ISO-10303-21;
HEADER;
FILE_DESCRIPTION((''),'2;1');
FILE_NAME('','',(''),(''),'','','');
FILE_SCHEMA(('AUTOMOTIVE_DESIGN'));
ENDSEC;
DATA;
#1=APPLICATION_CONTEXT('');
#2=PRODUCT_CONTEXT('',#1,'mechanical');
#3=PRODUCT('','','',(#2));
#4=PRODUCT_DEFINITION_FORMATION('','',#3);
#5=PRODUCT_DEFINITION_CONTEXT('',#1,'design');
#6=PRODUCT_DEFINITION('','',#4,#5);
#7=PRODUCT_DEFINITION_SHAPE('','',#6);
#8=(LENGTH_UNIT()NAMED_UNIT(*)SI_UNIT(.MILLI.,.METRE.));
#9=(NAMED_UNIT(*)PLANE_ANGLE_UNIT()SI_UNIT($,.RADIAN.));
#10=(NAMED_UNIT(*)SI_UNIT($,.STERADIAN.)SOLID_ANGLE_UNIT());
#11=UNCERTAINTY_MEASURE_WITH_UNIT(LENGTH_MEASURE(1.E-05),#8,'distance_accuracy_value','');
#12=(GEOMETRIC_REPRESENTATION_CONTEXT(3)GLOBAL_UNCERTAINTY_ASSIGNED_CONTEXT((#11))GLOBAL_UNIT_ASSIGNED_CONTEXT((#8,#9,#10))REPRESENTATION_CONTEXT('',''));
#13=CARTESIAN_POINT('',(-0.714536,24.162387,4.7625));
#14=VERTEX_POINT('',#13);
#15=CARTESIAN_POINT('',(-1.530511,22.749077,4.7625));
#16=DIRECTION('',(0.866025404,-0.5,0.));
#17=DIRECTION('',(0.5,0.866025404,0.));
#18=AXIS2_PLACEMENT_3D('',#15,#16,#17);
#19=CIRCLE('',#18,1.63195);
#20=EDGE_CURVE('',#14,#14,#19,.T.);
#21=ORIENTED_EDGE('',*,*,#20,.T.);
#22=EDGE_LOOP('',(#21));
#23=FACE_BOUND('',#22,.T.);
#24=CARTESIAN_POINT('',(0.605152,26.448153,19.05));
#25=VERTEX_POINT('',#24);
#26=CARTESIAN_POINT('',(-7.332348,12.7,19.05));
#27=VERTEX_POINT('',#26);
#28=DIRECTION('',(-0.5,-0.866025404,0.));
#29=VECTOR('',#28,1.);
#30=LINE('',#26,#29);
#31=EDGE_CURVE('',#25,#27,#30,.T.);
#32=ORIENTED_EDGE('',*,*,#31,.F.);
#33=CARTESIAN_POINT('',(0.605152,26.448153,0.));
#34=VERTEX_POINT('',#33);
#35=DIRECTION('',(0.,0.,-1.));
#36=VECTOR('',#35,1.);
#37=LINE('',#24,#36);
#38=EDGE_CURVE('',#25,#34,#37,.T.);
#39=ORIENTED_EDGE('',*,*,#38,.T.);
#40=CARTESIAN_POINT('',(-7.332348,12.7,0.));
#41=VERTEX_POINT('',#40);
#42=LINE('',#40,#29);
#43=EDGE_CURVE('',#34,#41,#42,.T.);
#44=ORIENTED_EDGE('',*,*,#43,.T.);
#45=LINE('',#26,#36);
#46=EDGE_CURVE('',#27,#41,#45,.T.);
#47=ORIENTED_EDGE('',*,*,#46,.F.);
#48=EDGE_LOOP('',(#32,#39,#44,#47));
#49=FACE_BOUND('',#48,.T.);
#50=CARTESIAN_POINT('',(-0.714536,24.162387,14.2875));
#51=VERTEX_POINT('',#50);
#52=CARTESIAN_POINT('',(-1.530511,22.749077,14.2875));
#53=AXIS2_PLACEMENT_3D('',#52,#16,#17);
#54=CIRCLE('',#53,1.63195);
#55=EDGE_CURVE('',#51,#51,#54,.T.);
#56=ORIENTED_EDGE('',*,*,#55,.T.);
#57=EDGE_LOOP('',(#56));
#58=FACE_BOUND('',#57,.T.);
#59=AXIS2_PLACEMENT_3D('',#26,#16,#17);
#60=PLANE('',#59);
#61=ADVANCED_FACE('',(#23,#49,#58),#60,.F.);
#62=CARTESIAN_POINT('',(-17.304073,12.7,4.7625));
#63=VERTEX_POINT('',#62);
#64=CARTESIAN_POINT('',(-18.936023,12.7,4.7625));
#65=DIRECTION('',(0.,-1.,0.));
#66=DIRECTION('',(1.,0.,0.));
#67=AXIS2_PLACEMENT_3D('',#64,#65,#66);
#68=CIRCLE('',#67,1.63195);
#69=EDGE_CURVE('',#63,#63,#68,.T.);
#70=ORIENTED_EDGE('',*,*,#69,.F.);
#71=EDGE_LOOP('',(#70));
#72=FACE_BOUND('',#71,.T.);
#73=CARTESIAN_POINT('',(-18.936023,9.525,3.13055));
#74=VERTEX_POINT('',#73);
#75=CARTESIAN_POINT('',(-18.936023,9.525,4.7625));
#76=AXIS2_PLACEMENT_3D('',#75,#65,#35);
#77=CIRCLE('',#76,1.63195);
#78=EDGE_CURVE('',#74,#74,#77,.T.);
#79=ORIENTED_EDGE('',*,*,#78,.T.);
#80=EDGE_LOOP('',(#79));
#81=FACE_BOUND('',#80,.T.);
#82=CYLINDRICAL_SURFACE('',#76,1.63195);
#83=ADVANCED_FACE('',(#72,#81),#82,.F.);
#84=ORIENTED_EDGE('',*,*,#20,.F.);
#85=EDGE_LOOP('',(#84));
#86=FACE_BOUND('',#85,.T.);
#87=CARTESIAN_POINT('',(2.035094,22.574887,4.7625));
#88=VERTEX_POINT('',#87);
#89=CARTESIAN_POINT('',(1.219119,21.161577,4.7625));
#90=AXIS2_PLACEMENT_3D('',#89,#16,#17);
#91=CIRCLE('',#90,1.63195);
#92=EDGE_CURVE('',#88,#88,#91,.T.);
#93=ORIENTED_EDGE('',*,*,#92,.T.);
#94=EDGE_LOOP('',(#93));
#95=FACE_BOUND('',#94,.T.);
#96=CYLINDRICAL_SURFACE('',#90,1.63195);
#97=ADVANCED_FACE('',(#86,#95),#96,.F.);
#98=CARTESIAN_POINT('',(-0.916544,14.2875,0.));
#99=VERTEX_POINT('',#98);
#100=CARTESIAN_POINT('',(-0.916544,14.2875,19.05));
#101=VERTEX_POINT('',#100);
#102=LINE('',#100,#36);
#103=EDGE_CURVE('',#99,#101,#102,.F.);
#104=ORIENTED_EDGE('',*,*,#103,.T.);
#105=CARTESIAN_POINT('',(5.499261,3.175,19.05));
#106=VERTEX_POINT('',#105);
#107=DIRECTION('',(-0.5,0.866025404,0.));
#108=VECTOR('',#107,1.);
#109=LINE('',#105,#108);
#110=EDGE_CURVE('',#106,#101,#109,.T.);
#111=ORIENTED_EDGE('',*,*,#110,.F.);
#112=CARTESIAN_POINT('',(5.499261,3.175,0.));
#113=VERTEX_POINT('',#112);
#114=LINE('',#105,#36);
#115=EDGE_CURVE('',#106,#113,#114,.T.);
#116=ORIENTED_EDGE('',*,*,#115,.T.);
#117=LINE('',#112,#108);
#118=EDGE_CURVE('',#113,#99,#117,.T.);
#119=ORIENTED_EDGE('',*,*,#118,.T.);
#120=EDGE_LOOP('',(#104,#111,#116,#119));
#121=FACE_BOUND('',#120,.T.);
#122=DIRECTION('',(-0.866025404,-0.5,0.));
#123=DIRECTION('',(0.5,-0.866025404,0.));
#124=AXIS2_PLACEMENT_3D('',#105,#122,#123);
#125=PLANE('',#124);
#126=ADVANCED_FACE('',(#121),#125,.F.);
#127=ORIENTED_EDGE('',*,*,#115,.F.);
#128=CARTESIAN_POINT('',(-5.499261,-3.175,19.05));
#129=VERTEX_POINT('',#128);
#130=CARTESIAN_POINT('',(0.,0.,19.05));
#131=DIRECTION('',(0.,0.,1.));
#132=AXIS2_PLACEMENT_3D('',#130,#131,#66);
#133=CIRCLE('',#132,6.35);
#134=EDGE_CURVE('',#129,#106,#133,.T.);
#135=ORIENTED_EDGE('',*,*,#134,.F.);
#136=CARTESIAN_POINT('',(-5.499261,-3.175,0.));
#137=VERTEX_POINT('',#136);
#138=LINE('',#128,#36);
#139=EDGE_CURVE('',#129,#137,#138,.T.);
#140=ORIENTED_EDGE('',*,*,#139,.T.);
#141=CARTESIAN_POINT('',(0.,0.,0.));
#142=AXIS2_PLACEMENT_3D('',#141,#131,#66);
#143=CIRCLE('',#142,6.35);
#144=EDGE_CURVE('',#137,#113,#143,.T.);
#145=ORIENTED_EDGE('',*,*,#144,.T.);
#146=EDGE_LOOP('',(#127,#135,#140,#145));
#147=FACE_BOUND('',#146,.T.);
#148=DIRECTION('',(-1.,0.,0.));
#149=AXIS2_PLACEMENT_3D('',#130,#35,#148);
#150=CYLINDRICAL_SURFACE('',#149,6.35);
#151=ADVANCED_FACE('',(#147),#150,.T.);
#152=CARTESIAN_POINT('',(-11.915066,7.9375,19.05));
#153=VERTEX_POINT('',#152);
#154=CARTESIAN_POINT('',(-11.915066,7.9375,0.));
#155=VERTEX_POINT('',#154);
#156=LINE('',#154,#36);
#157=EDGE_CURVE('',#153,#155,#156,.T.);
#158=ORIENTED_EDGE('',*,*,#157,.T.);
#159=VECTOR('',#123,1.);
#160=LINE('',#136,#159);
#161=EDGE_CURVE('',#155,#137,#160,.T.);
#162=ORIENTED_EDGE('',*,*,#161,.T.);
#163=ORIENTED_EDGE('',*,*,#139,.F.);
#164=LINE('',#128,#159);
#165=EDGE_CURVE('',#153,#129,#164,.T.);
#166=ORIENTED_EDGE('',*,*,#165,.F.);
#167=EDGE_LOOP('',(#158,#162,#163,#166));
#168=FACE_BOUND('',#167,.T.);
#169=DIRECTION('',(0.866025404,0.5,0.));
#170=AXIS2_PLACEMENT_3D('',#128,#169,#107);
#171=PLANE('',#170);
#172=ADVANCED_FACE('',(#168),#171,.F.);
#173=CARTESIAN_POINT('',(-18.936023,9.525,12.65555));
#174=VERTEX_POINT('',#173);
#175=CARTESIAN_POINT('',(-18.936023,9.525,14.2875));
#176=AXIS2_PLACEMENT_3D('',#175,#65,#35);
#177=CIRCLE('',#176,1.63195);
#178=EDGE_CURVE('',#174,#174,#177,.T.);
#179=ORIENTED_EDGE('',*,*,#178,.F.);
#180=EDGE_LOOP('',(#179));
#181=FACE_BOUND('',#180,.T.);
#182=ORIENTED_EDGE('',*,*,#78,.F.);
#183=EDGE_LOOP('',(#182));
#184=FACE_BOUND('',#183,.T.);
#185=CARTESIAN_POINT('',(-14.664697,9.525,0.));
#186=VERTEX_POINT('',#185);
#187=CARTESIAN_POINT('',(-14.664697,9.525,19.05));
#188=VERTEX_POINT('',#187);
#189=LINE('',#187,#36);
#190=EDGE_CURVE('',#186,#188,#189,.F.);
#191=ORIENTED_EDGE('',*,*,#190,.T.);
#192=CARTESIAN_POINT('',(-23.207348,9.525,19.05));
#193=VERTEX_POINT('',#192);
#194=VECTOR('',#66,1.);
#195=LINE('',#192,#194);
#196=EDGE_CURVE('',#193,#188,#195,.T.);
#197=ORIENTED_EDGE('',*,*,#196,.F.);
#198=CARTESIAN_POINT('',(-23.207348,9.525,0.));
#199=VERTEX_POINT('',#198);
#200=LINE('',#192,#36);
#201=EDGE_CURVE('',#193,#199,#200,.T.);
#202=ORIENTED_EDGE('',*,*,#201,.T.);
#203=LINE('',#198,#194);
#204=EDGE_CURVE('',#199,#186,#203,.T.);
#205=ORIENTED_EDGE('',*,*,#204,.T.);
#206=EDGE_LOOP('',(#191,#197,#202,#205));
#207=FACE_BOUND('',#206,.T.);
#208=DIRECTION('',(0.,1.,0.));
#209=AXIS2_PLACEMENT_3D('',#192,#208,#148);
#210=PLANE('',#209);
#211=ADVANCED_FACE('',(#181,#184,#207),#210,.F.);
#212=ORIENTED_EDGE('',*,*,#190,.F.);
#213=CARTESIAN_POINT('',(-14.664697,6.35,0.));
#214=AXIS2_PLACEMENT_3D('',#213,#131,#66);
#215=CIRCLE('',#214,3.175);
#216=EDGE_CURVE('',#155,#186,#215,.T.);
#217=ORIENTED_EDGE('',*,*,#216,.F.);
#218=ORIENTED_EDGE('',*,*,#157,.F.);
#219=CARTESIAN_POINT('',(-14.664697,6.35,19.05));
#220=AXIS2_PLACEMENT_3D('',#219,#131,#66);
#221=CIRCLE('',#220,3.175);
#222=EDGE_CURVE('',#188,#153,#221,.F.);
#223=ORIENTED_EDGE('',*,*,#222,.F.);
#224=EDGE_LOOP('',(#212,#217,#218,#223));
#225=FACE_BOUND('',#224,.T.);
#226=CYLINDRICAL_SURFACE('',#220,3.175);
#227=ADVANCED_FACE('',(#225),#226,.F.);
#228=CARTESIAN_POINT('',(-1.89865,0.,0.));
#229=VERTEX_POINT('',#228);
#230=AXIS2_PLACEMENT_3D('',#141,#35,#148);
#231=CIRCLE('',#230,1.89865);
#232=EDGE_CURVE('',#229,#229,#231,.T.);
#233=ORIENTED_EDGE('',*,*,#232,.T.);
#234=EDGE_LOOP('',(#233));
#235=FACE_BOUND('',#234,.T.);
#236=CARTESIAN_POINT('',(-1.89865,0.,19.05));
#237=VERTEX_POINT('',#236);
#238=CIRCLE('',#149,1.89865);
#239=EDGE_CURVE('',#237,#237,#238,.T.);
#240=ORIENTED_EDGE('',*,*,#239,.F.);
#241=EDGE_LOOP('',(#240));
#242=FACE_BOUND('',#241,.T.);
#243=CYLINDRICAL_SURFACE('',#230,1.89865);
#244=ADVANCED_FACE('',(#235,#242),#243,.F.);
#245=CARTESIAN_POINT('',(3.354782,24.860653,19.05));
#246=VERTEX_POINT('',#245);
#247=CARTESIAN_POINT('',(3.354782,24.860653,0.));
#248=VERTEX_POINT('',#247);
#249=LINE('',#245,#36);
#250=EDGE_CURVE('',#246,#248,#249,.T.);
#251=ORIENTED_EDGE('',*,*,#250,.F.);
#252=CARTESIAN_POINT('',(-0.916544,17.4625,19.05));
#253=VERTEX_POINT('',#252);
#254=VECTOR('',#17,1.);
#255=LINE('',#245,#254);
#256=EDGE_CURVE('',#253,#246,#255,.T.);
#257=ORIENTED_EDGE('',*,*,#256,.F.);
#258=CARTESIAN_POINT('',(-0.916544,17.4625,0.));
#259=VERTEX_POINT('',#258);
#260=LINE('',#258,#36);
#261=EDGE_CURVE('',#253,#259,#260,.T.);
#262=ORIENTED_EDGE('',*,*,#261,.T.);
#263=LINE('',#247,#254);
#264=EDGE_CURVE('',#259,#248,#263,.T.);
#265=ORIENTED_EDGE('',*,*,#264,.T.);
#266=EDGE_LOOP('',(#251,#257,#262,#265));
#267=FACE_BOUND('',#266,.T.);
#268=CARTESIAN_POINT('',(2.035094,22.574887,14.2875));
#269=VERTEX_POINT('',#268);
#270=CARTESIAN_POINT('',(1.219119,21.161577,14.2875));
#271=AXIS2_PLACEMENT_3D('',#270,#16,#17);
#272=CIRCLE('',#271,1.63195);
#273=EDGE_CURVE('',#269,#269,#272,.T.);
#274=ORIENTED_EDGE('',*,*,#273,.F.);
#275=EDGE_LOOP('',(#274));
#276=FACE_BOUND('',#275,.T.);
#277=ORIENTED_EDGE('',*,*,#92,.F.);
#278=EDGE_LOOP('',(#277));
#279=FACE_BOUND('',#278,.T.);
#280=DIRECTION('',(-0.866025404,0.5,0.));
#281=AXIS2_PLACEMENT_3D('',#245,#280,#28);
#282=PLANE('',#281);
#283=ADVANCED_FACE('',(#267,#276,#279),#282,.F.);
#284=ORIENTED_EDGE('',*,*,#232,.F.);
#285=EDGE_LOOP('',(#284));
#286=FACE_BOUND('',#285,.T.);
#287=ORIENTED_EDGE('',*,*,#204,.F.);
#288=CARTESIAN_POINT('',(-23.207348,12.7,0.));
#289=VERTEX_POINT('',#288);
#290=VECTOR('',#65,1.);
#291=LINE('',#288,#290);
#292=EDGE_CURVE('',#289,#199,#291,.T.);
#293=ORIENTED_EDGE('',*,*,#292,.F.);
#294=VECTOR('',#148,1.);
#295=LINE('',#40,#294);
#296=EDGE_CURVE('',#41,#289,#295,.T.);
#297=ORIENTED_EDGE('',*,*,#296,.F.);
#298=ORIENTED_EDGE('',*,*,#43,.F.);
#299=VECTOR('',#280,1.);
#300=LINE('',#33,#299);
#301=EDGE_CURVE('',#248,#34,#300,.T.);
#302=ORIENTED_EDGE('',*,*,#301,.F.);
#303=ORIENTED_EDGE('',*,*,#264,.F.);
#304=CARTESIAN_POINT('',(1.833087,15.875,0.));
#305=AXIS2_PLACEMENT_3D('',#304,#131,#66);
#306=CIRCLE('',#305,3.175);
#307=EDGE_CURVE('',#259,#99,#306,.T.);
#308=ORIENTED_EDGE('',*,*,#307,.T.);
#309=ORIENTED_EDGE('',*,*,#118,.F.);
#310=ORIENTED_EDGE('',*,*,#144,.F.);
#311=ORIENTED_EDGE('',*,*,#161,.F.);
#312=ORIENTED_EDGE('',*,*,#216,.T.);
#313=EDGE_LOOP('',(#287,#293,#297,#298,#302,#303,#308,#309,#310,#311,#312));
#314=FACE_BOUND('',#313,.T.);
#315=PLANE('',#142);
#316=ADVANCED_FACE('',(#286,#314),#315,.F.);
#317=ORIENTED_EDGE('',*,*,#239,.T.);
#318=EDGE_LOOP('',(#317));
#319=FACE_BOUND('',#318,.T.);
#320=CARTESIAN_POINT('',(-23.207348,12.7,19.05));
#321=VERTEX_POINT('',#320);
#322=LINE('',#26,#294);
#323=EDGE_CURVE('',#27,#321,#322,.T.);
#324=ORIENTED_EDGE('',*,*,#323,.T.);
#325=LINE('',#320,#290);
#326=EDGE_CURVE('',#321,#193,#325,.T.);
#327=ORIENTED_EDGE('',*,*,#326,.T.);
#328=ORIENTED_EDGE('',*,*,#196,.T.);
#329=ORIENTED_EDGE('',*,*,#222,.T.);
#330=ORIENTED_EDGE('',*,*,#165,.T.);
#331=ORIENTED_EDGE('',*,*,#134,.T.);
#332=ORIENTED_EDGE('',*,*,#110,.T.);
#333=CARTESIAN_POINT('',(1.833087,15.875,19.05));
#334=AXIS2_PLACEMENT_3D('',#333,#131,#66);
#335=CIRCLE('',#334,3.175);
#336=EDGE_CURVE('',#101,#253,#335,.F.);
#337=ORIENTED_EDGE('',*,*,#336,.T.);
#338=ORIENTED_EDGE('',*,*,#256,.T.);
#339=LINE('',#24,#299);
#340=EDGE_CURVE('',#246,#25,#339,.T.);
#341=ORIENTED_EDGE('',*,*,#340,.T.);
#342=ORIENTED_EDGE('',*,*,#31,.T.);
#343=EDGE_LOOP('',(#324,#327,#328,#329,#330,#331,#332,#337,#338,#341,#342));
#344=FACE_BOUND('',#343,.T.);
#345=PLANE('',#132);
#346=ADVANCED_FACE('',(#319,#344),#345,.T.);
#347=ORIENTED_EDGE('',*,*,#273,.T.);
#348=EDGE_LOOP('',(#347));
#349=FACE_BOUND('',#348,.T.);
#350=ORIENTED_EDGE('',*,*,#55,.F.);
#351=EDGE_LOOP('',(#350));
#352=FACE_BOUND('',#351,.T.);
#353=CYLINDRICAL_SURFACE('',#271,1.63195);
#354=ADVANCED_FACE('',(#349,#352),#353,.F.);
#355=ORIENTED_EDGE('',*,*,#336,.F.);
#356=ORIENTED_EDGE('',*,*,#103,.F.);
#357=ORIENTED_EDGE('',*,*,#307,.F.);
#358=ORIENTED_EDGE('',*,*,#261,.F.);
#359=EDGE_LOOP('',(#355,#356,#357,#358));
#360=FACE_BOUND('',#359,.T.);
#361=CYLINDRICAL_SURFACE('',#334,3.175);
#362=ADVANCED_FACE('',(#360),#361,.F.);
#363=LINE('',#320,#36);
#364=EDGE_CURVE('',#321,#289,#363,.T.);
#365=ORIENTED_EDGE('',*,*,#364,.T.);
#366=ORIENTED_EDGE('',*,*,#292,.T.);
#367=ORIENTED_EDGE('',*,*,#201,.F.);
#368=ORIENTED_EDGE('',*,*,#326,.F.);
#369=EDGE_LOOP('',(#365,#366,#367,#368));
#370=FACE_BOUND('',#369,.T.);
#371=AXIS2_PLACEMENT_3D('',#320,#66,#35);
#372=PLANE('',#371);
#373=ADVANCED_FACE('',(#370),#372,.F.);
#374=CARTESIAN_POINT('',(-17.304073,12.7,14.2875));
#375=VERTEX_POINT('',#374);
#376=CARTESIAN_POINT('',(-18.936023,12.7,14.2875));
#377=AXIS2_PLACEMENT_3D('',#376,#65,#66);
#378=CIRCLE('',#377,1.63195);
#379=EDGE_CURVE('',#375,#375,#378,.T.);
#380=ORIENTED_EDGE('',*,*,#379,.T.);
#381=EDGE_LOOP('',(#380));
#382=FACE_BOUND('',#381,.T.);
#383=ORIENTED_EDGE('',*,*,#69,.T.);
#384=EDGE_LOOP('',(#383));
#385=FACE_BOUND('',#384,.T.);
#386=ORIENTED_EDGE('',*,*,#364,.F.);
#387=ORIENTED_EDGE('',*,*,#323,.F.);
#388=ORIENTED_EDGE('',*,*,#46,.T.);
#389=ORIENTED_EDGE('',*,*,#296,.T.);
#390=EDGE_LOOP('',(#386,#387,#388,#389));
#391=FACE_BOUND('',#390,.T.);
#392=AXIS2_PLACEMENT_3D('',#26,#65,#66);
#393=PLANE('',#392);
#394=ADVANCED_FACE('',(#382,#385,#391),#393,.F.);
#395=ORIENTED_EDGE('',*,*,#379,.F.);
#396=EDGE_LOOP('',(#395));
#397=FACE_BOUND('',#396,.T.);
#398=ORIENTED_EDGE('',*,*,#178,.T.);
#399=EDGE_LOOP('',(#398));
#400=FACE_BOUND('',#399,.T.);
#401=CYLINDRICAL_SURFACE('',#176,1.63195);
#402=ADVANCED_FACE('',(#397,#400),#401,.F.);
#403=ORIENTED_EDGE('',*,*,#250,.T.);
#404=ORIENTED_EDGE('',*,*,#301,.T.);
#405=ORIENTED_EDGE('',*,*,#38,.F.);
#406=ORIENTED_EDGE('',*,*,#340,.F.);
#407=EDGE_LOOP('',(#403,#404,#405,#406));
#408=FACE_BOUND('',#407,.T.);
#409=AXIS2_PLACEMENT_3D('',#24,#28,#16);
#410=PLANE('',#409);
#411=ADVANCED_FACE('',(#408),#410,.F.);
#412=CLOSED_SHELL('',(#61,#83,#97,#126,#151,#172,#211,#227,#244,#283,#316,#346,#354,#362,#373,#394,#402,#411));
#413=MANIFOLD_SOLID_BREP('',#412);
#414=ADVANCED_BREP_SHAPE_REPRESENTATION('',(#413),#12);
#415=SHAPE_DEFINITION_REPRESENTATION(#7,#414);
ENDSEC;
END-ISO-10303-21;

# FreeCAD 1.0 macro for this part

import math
import FreeCAD as App
import Part
import Sketcher

V = App.Vector
Q = App.Units.Quantity


def edges_at(feature, points):
    """Names of the edges that pass closest to the given points."""
    edges = feature.Shape.Edges
    near = lambda p: min(range(len(edges)), key=lambda i: edges[i].distToShape(Part.Vertex(*p))[0])
    return sorted({f"Edge{near(p) + 1}" for p in points})

doc = App.newDocument("Part")
params = doc.addObject("Spreadsheet::Sheet", "Params")
for row, (alias, value) in enumerate([
    ("sketch1_radius", "0.25 in"),
    ("sketch1_width", "0.625 in"),
    ("sketch1_length", "0.625 in"),
    ("sketch1_length2", "0.125 in"),
    ("pad1_length", "0.75 in"),
    ("hole_diameter", "0.1495 in"),
    ("fillet_radius", "0.125 in"),
    ("hole2_diameter", "0.1285 in"),
    ("hole3_diameter", "0.1285 in"),
], start=1):
    params.set(f"A{row}", alias)
    params.set(f"B{row}", "=" + value)
    params.setAlias(f"B{row}", alias)

body = doc.addObject("PartDesign::Body", "Body")

# Sketch on XY plane
sketch1 = doc.addObject("Sketcher::SketchObject", "Sketch")
body.addObject(sketch1)
sketch1.AttachmentSupport = (doc.XY_Plane, [""])
sketch1.MapMode = "FlatFace"
sketch1.addGeometry([
    Part.LineSegment(V(0.6, 26.4, 0), V(-7.3, 12.7, 0)),  # 0
    Part.LineSegment(V(-7.3, 12.7, 0), V(-23.2, 12.7, 0)),  # 1
    Part.LineSegment(V(-23.2, 12.7, 0), V(-23.2, 9.5, 0)),  # 2
    Part.LineSegment(V(-23.2, 9.5, 0), V(-12.8, 9.5, 0)),  # 3
    Part.LineSegment(V(-12.8, 9.5, 0), V(-5.5, -3.2, 0)),  # 4
    Part.ArcOfCircle(Part.Circle(V(0, 0, 0), V(0, 0, 1), 6.3), math.radians(-150), math.radians(30)),  # 5
    Part.LineSegment(V(5.5, 3.2, 0), V(-1.8, 15.9, 0)),  # 6
    Part.LineSegment(V(-1.8, 15.9, 0), V(3.4, 24.9, 0)),  # 7
    Part.LineSegment(V(3.4, 24.9, 0), V(0.6, 26.4, 0)),  # 8
], False)
sketch1.addConstraint([
    Sketcher.Constraint("Coincident", 0, 2, 1, 1),
    Sketcher.Constraint("Coincident", 1, 2, 2, 1),
    Sketcher.Constraint("Coincident", 2, 2, 3, 1),
    Sketcher.Constraint("Coincident", 3, 2, 4, 1),
    Sketcher.Constraint("Tangent", 4, 2, 5, 1),
    Sketcher.Constraint("Tangent", 5, 2, 6, 1),
    Sketcher.Constraint("Coincident", 6, 2, 7, 1),
    Sketcher.Constraint("Coincident", 7, 2, 8, 1),
    Sketcher.Constraint("Coincident", 8, 2, 0, 1),
    Sketcher.Constraint("Horizontal", 1),
    Sketcher.Constraint("Vertical", 2),
    Sketcher.Constraint("Horizontal", 3),
    Sketcher.Constraint("Coincident", 5, 3, -1, 1),
    Sketcher.Constraint("Parallel", 4, 6),
    Sketcher.Constraint("Parallel", 0, 7),
    Sketcher.Constraint("Perpendicular", 7, 8),
    Sketcher.Constraint("Equal", 4, 6),
    Sketcher.Constraint("Radius", 5, Q("0.25 in")),
    Sketcher.Constraint("Angle", 0, Q("-120 deg")),
    Sketcher.Constraint("Angle", 4, Q("-60 deg")),
    Sketcher.Constraint("DistanceY", -1, 1, 0, 2, Q("0.5 in")),
    Sketcher.Constraint("DistanceY", 4, 2, 3, 2, Q("0.5 in")),
    Sketcher.Constraint("DistanceX", 1, 2, 1, 1, Q("0.625 in")),
    Sketcher.Constraint("Distance", 0, Q("0.625 in")),
    Sketcher.Constraint("Distance", 8, Q("0.125 in")),
])
sketch1.setExpression("Constraints[17]", "Params.sketch1_radius")
sketch1.setExpression("Constraints[22]", "Params.sketch1_width")
sketch1.setExpression("Constraints[23]", "Params.sketch1_length")
sketch1.setExpression("Constraints[24]", "Params.sketch1_length2")
pad1 = doc.addObject("PartDesign::Pad", "Pad")
body.addObject(pad1)
pad1.Profile = sketch1
pad1.setExpression("Length", "Params.pad1_length")

# Sketch on XY plane
sketch2 = doc.addObject("Sketcher::SketchObject", "Sketch001")
body.addObject(sketch2)
sketch2.AttachmentSupport = (doc.XY_Plane, [""])
sketch2.MapMode = "FlatFace"
sketch2.addGeometry(Part.Circle(V(0, 0, 0), V(0, 0, 1), 1.9), False)
sketch2.addConstraint([
    Sketcher.Constraint("Coincident", 0, 3, -1, 1),
    Sketcher.Constraint("Diameter", 0, Q("0.1495 in")),
])
doc.recompute()
hole = doc.addObject("PartDesign::Hole", "Hole")
body.addObject(hole)
hole.Profile = sketch2
hole.ThreadType = "None"
hole.setExpression("Diameter", "Params.hole_diameter")
hole.DepthType = "ThroughAll"
hole.Reversed = True
doc.recompute()

fillet = doc.addObject("PartDesign::Fillet", "Fillet")
body.addObject(fillet)
fillet.Base = (hole, edges_at(hole, [(-1.833, 15.875, 9.525), (-12.832, 9.525, 9.525)]))
fillet.setExpression("Radius", "Params.fillet_radius")

# Sketch on an angled plane
sketch3 = doc.addObject("Sketcher::SketchObject", "Sketch002")
body.addObject(sketch3)
sketch3.Placement = App.Placement(V(-8.248892, 4.7625, 0), App.Rotation(V(0, 0, -1), V(0.5, 0.866025404, 0), V(0.866025404, -0.5, 0), "ZXY"))
sketch3.addGeometry([
    Part.Circle(V(-4.8, 18.9, 0), V(0, 0, 1), 1.6),
    Part.Circle(V(-14.3, 18.9, 0), V(0, 0, 1), 1.6),
], False)
sketch3.addConstraint([
    Sketcher.Constraint("Equal", 0, 1),
    Sketcher.Constraint("Horizontal", 0, 3, 1, 3),
    Sketcher.Constraint("Diameter", 0, Q("0.1285 in")),
    Sketcher.Constraint("DistanceX", 0, 3, -1, 1, Q("0.1875 in")),
    Sketcher.Constraint("DistanceX", 1, 3, -1, 1, Q("0.5625 in")),
    Sketcher.Constraint("DistanceY", -1, 1, 0, 3, 18.936023),
])
doc.recompute()
hole2 = doc.addObject("PartDesign::Hole", "Hole001")
body.addObject(hole2)
hole2.Profile = sketch3
hole2.ThreadType = "None"
hole2.setExpression("Diameter", "Params.hole2_diameter")
hole2.DepthType = "ThroughAll"

# Sketch on XZ plane
sketch4 = doc.addObject("Sketcher::SketchObject", "Sketch003")
body.addObject(sketch4)
sketch4.AttachmentSupport = (doc.XZ_Plane, [""])
sketch4.MapMode = "FlatFace"
sketch4.AttachmentOffset = App.Placement(V(0, 0, -0.375 * 25.4), App.Rotation())
sketch4.addGeometry([
    Part.Circle(V(-18.9, 14.3, 0), V(0, 0, 1), 1.6),
    Part.Circle(V(-18.9, 4.8, 0), V(0, 0, 1), 1.6),
], False)
sketch4.addConstraint([
    Sketcher.Constraint("Equal", 0, 1),
    Sketcher.Constraint("Vertical", 0, 3, 1, 3),
    Sketcher.Constraint("Diameter", 0, Q("0.1285 in")),
    Sketcher.Constraint("DistanceY", -1, 1, 0, 3, Q("0.5625 in")),
    Sketcher.Constraint("DistanceY", -1, 1, 1, 3, Q("0.1875 in")),
    Sketcher.Constraint("DistanceX", 0, 3, -1, 1, 18.936023),
])
doc.recompute()
hole3 = doc.addObject("PartDesign::Hole", "Hole002")
body.addObject(hole3)
hole3.Profile = sketch4
hole3.ThreadType = "None"
hole3.setExpression("Diameter", "Params.hole3_diameter")
hole3.DepthType = "ThroughAll"

doc.recompute()
